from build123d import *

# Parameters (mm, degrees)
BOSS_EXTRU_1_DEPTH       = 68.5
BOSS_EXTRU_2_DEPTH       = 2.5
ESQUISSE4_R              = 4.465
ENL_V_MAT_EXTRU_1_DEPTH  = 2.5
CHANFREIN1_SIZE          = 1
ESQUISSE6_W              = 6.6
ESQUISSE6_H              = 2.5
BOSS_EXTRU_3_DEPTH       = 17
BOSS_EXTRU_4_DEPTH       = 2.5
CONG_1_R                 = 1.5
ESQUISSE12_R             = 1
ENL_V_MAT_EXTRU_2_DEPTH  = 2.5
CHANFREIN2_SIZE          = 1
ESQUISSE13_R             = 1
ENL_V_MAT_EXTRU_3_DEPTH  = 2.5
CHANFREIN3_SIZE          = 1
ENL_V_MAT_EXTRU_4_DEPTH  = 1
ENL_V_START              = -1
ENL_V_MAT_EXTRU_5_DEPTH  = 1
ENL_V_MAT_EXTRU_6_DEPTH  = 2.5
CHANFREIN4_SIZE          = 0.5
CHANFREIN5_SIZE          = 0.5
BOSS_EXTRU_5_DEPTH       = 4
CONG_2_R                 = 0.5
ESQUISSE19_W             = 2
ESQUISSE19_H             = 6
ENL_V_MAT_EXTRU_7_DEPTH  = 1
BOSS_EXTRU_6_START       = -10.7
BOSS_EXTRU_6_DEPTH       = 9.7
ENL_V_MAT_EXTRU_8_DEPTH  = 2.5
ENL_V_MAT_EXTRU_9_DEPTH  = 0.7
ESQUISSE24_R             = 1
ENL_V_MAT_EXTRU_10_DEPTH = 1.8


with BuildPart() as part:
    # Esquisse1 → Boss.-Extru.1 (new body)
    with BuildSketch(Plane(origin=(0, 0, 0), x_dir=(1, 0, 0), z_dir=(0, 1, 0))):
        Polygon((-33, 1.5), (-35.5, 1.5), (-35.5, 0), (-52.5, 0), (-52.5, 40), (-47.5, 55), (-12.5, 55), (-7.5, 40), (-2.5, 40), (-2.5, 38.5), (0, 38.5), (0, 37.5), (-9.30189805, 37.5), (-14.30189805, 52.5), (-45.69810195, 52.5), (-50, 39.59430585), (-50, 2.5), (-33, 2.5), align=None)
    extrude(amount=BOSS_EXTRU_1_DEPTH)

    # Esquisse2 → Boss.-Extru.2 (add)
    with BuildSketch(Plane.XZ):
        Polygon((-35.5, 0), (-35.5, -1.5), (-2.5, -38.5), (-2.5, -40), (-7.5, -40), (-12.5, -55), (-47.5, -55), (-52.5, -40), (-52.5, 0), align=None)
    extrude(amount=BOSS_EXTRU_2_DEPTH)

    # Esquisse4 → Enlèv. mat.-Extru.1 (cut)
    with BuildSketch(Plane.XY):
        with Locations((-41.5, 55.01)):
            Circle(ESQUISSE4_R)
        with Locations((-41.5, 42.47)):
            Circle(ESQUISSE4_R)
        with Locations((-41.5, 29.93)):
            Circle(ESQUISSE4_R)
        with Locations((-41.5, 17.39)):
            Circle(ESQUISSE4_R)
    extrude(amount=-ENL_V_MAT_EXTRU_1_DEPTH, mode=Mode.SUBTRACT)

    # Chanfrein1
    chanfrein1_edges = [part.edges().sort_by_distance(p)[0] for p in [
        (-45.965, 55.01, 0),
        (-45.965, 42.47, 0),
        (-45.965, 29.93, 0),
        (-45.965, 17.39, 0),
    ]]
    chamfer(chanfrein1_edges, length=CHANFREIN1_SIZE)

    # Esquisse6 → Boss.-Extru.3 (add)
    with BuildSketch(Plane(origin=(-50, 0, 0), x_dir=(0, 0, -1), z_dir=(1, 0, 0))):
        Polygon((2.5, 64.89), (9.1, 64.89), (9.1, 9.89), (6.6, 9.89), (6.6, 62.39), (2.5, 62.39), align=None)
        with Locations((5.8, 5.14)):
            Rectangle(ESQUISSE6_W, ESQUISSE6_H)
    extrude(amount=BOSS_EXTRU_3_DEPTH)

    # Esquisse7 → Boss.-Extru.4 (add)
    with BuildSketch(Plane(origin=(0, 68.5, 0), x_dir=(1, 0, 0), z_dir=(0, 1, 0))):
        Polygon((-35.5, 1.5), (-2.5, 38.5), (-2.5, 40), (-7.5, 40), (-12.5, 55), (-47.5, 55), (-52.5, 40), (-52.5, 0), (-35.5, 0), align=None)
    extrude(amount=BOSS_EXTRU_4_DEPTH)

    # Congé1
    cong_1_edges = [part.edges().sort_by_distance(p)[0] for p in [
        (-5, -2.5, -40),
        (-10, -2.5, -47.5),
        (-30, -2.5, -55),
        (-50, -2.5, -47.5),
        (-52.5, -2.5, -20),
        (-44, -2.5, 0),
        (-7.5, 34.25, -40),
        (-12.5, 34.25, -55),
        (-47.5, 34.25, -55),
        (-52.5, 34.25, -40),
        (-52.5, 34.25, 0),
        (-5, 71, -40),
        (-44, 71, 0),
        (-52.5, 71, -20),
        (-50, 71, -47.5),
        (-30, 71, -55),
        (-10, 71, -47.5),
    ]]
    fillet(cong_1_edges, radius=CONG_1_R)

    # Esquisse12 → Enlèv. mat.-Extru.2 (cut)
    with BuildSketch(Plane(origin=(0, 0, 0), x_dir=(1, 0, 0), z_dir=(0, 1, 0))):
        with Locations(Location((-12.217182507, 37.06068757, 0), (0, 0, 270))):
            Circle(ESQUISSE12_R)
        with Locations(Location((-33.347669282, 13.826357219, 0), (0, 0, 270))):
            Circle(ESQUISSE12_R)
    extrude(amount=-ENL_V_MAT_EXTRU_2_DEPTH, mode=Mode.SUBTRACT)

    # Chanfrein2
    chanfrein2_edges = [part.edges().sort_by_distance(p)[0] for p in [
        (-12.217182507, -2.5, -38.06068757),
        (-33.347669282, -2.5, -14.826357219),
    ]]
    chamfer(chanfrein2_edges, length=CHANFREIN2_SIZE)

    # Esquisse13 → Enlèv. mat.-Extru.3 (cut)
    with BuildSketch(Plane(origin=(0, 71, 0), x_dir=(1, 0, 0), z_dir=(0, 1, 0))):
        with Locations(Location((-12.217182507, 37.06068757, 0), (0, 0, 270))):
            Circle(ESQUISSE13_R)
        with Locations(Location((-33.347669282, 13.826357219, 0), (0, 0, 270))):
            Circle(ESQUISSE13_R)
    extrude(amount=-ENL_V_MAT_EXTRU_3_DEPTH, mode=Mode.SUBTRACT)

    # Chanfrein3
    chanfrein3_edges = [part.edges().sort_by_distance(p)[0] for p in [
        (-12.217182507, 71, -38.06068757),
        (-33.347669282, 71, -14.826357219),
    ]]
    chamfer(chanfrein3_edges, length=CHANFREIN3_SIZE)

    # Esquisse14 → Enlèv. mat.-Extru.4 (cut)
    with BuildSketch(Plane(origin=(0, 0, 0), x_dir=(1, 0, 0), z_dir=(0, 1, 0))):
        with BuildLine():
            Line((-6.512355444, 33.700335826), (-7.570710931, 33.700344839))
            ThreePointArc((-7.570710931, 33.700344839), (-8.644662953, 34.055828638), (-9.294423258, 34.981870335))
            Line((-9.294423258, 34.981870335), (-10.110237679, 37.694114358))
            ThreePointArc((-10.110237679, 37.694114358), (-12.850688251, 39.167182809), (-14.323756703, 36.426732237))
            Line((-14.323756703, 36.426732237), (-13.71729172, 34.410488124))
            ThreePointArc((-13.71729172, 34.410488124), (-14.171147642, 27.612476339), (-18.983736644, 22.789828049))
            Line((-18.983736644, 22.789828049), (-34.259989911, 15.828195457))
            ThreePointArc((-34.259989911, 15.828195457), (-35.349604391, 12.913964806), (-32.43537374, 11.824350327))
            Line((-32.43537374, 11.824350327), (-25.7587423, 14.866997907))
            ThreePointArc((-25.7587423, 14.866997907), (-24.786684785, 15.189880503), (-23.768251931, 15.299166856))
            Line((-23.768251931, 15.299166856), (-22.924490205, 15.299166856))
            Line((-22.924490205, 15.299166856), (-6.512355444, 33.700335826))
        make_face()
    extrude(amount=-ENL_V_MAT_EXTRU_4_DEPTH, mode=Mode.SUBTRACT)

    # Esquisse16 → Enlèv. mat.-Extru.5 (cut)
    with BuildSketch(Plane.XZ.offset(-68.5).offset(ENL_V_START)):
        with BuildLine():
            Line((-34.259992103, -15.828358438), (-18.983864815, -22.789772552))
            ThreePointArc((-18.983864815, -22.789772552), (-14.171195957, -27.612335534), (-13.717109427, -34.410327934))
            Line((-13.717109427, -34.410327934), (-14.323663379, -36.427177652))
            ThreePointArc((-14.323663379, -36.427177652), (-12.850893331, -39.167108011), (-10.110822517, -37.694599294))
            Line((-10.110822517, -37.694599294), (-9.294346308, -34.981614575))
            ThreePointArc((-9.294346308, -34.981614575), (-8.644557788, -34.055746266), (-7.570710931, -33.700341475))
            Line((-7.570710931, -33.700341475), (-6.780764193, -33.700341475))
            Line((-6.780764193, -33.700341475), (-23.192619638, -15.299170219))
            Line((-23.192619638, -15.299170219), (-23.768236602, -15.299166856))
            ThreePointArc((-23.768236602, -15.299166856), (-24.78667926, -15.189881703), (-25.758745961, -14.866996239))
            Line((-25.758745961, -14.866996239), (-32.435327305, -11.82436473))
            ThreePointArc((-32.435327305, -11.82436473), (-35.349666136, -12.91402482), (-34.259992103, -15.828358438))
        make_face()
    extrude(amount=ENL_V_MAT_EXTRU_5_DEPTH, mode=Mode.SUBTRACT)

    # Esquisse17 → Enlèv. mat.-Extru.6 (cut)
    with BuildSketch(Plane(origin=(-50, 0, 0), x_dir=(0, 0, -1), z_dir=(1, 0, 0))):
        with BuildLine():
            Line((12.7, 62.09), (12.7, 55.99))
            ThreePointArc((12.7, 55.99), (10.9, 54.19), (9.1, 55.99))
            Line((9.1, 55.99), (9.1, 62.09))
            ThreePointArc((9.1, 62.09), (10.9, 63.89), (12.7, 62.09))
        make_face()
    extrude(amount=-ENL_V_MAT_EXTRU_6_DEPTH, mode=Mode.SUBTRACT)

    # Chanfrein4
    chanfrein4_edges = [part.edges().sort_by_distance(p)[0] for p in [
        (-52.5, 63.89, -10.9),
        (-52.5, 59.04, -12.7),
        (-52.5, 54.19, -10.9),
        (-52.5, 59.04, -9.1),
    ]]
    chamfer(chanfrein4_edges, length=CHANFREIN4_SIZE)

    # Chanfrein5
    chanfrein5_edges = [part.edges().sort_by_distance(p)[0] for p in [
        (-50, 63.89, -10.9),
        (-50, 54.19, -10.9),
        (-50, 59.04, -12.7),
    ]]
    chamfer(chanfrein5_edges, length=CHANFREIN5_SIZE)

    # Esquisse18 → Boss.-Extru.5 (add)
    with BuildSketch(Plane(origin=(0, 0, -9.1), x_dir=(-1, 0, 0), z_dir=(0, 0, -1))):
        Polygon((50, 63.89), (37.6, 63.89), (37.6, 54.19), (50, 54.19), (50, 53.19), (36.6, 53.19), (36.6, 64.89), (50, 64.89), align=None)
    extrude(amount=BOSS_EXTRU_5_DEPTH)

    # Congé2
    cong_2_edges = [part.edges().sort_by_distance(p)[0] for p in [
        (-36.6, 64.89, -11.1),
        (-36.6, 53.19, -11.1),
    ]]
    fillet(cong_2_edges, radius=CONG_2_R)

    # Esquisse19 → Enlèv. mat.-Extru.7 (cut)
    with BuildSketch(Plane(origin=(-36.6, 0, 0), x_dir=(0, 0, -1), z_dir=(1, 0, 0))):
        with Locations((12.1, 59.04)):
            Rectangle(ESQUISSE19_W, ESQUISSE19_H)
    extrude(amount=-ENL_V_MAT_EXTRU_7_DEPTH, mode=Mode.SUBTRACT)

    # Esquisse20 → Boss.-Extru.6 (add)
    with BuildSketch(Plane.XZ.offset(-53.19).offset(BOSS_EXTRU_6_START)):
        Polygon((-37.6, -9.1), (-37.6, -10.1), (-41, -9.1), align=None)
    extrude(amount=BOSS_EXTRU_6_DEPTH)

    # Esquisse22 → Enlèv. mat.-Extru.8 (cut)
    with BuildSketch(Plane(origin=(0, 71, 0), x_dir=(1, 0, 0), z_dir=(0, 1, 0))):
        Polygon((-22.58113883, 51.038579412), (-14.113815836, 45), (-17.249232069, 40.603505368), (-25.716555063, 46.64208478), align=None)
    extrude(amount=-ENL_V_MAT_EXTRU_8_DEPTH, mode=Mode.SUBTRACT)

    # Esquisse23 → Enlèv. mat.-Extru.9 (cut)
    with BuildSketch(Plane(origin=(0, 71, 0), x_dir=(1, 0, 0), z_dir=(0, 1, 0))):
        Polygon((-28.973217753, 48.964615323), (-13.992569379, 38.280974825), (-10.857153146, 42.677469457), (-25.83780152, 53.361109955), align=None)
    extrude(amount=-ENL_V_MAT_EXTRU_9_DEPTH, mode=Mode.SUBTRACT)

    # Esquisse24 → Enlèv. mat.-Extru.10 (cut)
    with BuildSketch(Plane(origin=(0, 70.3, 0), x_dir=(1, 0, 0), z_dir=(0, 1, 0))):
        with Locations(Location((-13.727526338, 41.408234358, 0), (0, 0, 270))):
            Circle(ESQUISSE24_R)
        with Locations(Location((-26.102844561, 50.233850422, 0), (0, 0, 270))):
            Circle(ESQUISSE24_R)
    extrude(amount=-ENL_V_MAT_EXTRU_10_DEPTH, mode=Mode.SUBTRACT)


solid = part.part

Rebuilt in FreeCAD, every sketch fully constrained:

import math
import FreeCAD as App
import Part
import Sketcher

V = App.Vector
Q = App.Units.Quantity


def edges_at(feature, points):
    """Names of the edges that pass closest to the given points."""
    edges = feature.Shape.Edges
    near = lambda p: min(range(len(edges)), key=lambda i: edges[i].distToShape(Part.Vertex(*p))[0])
    return sorted({f"Edge{near(p) + 1}" for p in points})


def add_polygon(sketch, points):
    """Adds a closed chain of lines whose ends are joined by coincident constraints."""
    first, n = sketch.GeometryCount, len(points)
    for a, b in zip(points, points[1:] + points[:1]):
        sketch.addGeometry(Part.LineSegment(App.Vector(*a, 0), App.Vector(*b, 0)), False)
    for i in range(n):
        sketch.addConstraint(Sketcher.Constraint("Coincident", first + i, 2, first + (i + 1) % n, 1))

doc = App.newDocument("Part")
body = doc.addObject("PartDesign::Body", "Body")

# Sketch on XZ plane
sketch1 = doc.addObject("Sketcher::SketchObject", "Sketch")
body.addObject(sketch1)
sketch1.AttachmentSupport = (doc.XZ_Plane, [""])
sketch1.MapMode = "FlatFace"
add_polygon(sketch1, [(-35.5, -1.5), (-33, -1.5), (-33, -2.5), (-50, -2.5), (-50, -39.6), (-45.7, -52.5), (-14.3, -52.5), (-9.3, -37.5), (0, -37.5), (0, -38.5), (-2.5, -38.5), (-2.5, -40), (-7.5, -40), (-12.5, -55), (-47.5, -55), (-52.5, -40), (-52.5, 0), (-35.5, 0)])  # lines 0-17
sketch1.addConstraint(Sketcher.Constraint("Horizontal", 0))
sketch1.addConstraint(Sketcher.Constraint("Vertical", 1))
sketch1.addConstraint(Sketcher.Constraint("Horizontal", 2))
sketch1.addConstraint(Sketcher.Constraint("Vertical", 3))
sketch1.addConstraint(Sketcher.Constraint("Horizontal", 5))
sketch1.addConstraint(Sketcher.Constraint("Horizontal", 7))
sketch1.addConstraint(Sketcher.Constraint("Vertical", 8))
sketch1.addConstraint(Sketcher.Constraint("Horizontal", 9))
sketch1.addConstraint(Sketcher.Constraint("Vertical", 10))
sketch1.addConstraint(Sketcher.Constraint("Horizontal", 11))
sketch1.addConstraint(Sketcher.Constraint("Horizontal", 13))
sketch1.addConstraint(Sketcher.Constraint("Vertical", 15))
sketch1.addConstraint(Sketcher.Constraint("Horizontal", 16))
sketch1.addConstraint(Sketcher.Constraint("Vertical", 17))
sketch1.addConstraint(Sketcher.Constraint("PointOnObject", 7, 2, -2))
sketch1.addConstraint(Sketcher.Constraint("PointOnObject", 15, 2, -1))
sketch1.addConstraint(Sketcher.Constraint("Parallel", 6, 12))
sketch1.addConstraint(Sketcher.Constraint("Parallel", 4, 14))
sketch1.addConstraint(Sketcher.Constraint("Horizontal", 11, 2, 14, 2))
sketch1.addConstraint(Sketcher.Constraint("Equal", 0, 9))
sketch1.addConstraint(Sketcher.Constraint("Equal", 2, 16))
sketch1.addConstraint(Sketcher.Constraint("Equal", 1, 8))
sketch1.addConstraint(Sketcher.Constraint("Equal", 10, 17))
sketch1.addConstraint(Sketcher.Constraint("Equal", 6, 12))
sketch1.addConstraint(Sketcher.Constraint("Equal", 12, 14))
sketch1.addConstraint(Sketcher.Constraint("DistanceX", 2, 2, 2, 1, 17.0))
sketch1.addConstraint(Sketcher.Constraint("DistanceX", 11, 2, 11, 1, 5.0))
sketch1.addConstraint(Sketcher.Constraint("DistanceX", 13, 2, 13, 1, 35.0))
sketch1.addConstraint(Sketcher.Constraint("DistanceY", 1, 2, 1, 1, 1.0))
sketch1.addConstraint(Sketcher.Constraint("DistanceY", 15, 1, 15, 2, 40.0))
sketch1.addConstraint(Sketcher.Constraint("DistanceX", 0, 1, 0, 2, 2.5))
sketch1.addConstraint(Sketcher.Constraint("DistanceY", 10, 2, 10, 1, 1.5))
sketch1.addConstraint(Sketcher.Constraint("DistanceX", 0, 2, -1, 1, 33.0))
sketch1.addConstraint(Sketcher.Constraint("DistanceY", 12, 2, -1, 1, 55.0))
sketch1.addConstraint(Sketcher.Constraint("DistanceX", 7, 1, 7, 2, 9.301898))
sketch1.addConstraint(Sketcher.Constraint("DistanceX", 4, 2, -1, 1, 45.698102))
pad1 = doc.addObject("PartDesign::Pad", "Pad")
body.addObject(pad1)
pad1.Profile = sketch1
pad1.Length = 68.5
pad1.Reversed = True

# Sketch on XZ plane
sketch2 = doc.addObject("Sketcher::SketchObject", "Sketch001")
body.addObject(sketch2)
sketch2.AttachmentSupport = (doc.XZ_Plane, [""])
sketch2.MapMode = "FlatFace"
add_polygon(sketch2, [(-35.5, -1.5), (-35.5, 0), (-52.5, 0), (-52.5, -40), (-47.5, -55), (-12.5, -55), (-7.5, -40), (-2.5, -40), (-2.5, -38.5)])  # lines 0-8
sketch2.addConstraint(Sketcher.Constraint("Vertical", 0))
sketch2.addConstraint(Sketcher.Constraint("Horizontal", 1))
sketch2.addConstraint(Sketcher.Constraint("Vertical", 2))
sketch2.addConstraint(Sketcher.Constraint("Horizontal", 4))
sketch2.addConstraint(Sketcher.Constraint("Horizontal", 6))
sketch2.addConstraint(Sketcher.Constraint("Vertical", 7))
sketch2.addConstraint(Sketcher.Constraint("PointOnObject", 0, 2, -1))
sketch2.addConstraint(Sketcher.Constraint("Horizontal", 2, 2, 5, 2))
sketch2.addConstraint(Sketcher.Constraint("Equal", 0, 7))
sketch2.addConstraint(Sketcher.Constraint("Equal", 3, 5))
sketch2.addConstraint(Sketcher.Constraint("DistanceX", 1, 2, 1, 1, 17.0))
sketch2.addConstraint(Sketcher.Constraint("DistanceX", 4, 1, 4, 2, 35.0))
sketch2.addConstraint(Sketcher.Constraint("DistanceX", 6, 1, 6, 2, 5.0))
sketch2.addConstraint(Sketcher.Constraint("DistanceY", 2, 2, 2, 1, 40.0))
sketch2.addConstraint(Sketcher.Constraint("DistanceY", 0, 1, 0, 2, 1.5))
sketch2.addConstraint(Sketcher.Constraint("DistanceY", 3, 2, -1, 1, 55.0))
sketch2.addConstraint(Sketcher.Constraint("DistanceX", 2, 2, 3, 2, 5.0))
sketch2.addConstraint(Sketcher.Constraint("DistanceX", 0, 2, -1, 1, 35.5))
pad2 = doc.addObject("PartDesign::Pad", "Pad001")
body.addObject(pad2)
pad2.Profile = sketch2
pad2.Length = 2.5

# Sketch on XY plane
sketch3 = doc.addObject("Sketcher::SketchObject", "Sketch002")
body.addObject(sketch3)
sketch3.AttachmentSupport = (doc.XY_Plane, [""])
sketch3.MapMode = "FlatFace"
sketch3.addGeometry(Part.Circle(V(-41.5, 55, 0), V(0, 0, 1), 4.5), False)
sketch3.addGeometry(Part.Circle(V(-41.5, 42.5, 0), V(0, 0, 1), 4.5), False)
sketch3.addGeometry(Part.Circle(V(-41.5, 29.9, 0), V(0, 0, 1), 4.5), False)
sketch3.addGeometry(Part.Circle(V(-41.5, 17.4, 0), V(0, 0, 1), 4.5), False)
sketch3.addConstraint(Sketcher.Constraint("Equal", 0, 1))
sketch3.addConstraint(Sketcher.Constraint("Equal", 1, 2))
sketch3.addConstraint(Sketcher.Constraint("Equal", 2, 3))
sketch3.addConstraint(Sketcher.Constraint("Vertical", 0, 3, 1, 3))
sketch3.addConstraint(Sketcher.Constraint("Vertical", 1, 3, 2, 3))
sketch3.addConstraint(Sketcher.Constraint("Vertical", 2, 3, 3, 3))
sketch3.addConstraint(Sketcher.Constraint("Diameter", 0, 8.93))
sketch3.addConstraint(Sketcher.Constraint("DistanceX", 0, 3, -1, 1, 41.5))
sketch3.addConstraint(Sketcher.Constraint("DistanceY", -1, 1, 0, 3, 55.01))
sketch3.addConstraint(Sketcher.Constraint("DistanceY", -1, 1, 1, 3, 42.47))
sketch3.addConstraint(Sketcher.Constraint("DistanceY", -1, 1, 2, 3, 29.93))
sketch3.addConstraint(Sketcher.Constraint("DistanceY", -1, 1, 3, 3, 17.39))
pocket1 = doc.addObject("PartDesign::Pocket", "Pocket")
body.addObject(pocket1)
pocket1.Profile = sketch3
pocket1.Length = 2.5
doc.recompute()

chamfer = doc.addObject("PartDesign::Chamfer", "Chamfer")
body.addObject(chamfer)
chamfer.Base = (pocket1, edges_at(pocket1, [
    (-45.965, 55.01, 0),
    (-45.965, 42.47, 0),
    (-45.965, 29.93, 0),
    (-45.965, 17.39, 0),
]))
chamfer.Size = 1

# Sketch on YZ plane
sketch4 = doc.addObject("Sketcher::SketchObject", "Sketch003")
body.addObject(sketch4)
sketch4.AttachmentSupport = (doc.YZ_Plane, [""])
sketch4.MapMode = "FlatFace"
sketch4.AttachmentOffset = App.Placement(V(0, 0, -50), App.Rotation())
add_polygon(sketch4, [(64.9, -9.1), (64.9, -2.5), (62.4, -2.5), (62.4, -6.6), (9.9, -6.6), (9.9, -9.1)])  # lines 0-5
add_polygon(sketch4, [(6.4, -2.5), (3.9, -2.5), (3.9, -9.1), (6.4, -9.1)])  # lines 6-9
sketch4.addConstraint(Sketcher.Constraint("Vertical", 0))
sketch4.addConstraint(Sketcher.Constraint("Horizontal", 1))
sketch4.addConstraint(Sketcher.Constraint("Vertical", 2))
sketch4.addConstraint(Sketcher.Constraint("Horizontal", 3))
sketch4.addConstraint(Sketcher.Constraint("Vertical", 4))
sketch4.addConstraint(Sketcher.Constraint("Horizontal", 5))
sketch4.addConstraint(Sketcher.Constraint("Horizontal", 6))
sketch4.addConstraint(Sketcher.Constraint("Vertical", 7))
sketch4.addConstraint(Sketcher.Constraint("Horizontal", 8))
sketch4.addConstraint(Sketcher.Constraint("Vertical", 9))
sketch4.addConstraint(Sketcher.Constraint("Horizontal", 1, 2, 6, 2))
sketch4.addConstraint(Sketcher.Constraint("Horizontal", 5, 2, 7, 2))
sketch4.addConstraint(Sketcher.Constraint("Equal", 1, 6))
sketch4.addConstraint(Sketcher.Constraint("Equal", 8, 4))
sketch4.addConstraint(Sketcher.Constraint("DistanceX", 5, 1, 5, 2, 55.0))
sketch4.addConstraint(Sketcher.Constraint("DistanceX", 1, 2, 1, 1, 2.5))
sketch4.addConstraint(Sketcher.Constraint("DistanceY", 0, 1, 0, 2, 6.6))
sketch4.addConstraint(Sketcher.Constraint("DistanceX", 6, 2, 3, 2, 6.0))
sketch4.addConstraint(Sketcher.Constraint("DistanceY", 0, 2, -1, 1, 2.5))
sketch4.addConstraint(Sketcher.Constraint("DistanceX", -1, 1, 0, 2, 64.89))
pad3 = doc.addObject("PartDesign::Pad", "Pad002")
body.addObject(pad3)
pad3.Profile = sketch4
pad3.Length = 17

# Sketch on XZ plane
sketch5 = doc.addObject("Sketcher::SketchObject", "Sketch004")
body.addObject(sketch5)
sketch5.AttachmentSupport = (doc.XZ_Plane, [""])
sketch5.MapMode = "FlatFace"
sketch5.AttachmentOffset = App.Placement(V(0, 0, -68.5), App.Rotation())
add_polygon(sketch5, [(-35.5, -1.5), (-2.5, -38.5), (-2.5, -40), (-7.5, -40), (-12.5, -55), (-47.5, -55), (-52.5, -40), (-52.5, 0), (-35.5, 0)])  # lines 0-8
sketch5.addConstraint(Sketcher.Constraint("Vertical", 1))
sketch5.addConstraint(Sketcher.Constraint("Horizontal", 2))
sketch5.addConstraint(Sketcher.Constraint("Horizontal", 4))
sketch5.addConstraint(Sketcher.Constraint("Vertical", 6))
sketch5.addConstraint(Sketcher.Constraint("Horizontal", 7))
sketch5.addConstraint(Sketcher.Constraint("Vertical", 8))
sketch5.addConstraint(Sketcher.Constraint("PointOnObject", 6, 2, -1))
sketch5.addConstraint(Sketcher.Constraint("Horizontal", 2, 2, 5, 2))
sketch5.addConstraint(Sketcher.Constraint("Equal", 1, 8))
sketch5.addConstraint(Sketcher.Constraint("Equal", 3, 5))
sketch5.addConstraint(Sketcher.Constraint("DistanceX", 2, 2, 2, 1, 5.0))
sketch5.addConstraint(Sketcher.Constraint("DistanceX", 4, 2, 4, 1, 35.0))
sketch5.addConstraint(Sketcher.Constraint("DistanceX", 7, 1, 7, 2, 17.0))
sketch5.addConstraint(Sketcher.Constraint("DistanceY", 6, 1, 6, 2, 40.0))
sketch5.addConstraint(Sketcher.Constraint("DistanceY", 1, 2, 1, 1, 1.5))
sketch5.addConstraint(Sketcher.Constraint("DistanceY", 3, 2, -1, 1, 55.0))
sketch5.addConstraint(Sketcher.Constraint("DistanceX", 3, 2, 2, 2, 5.0))
sketch5.addConstraint(Sketcher.Constraint("DistanceX", 0, 2, -1, 1, 2.5))
pad4 = doc.addObject("PartDesign::Pad", "Pad003")
body.addObject(pad4)
pad4.Profile = sketch5
pad4.Length = 2.5
pad4.Reversed = True
doc.recompute()

fillet = doc.addObject("PartDesign::Fillet", "Fillet")
body.addObject(fillet)
fillet.Base = (pad4, edges_at(pad4, [
    (-5, -2.5, -40),
    (-10, -2.5, -47.5),
    (-30, -2.5, -55),
    (-50, -2.5, -47.5),
    (-52.5, -2.5, -20),
    (-44, -2.5, 0),
    (-7.5, 34.25, -40),
    (-12.5, 34.25, -55),
    (-47.5, 34.25, -55),
    (-52.5, 34.25, -40),
    (-52.5, 34.25, 0),
    (-5, 71, -40),
    (-44, 71, 0),
    (-52.5, 71, -20),
    (-50, 71, -47.5),
    (-30, 71, -55),
    (-10, 71, -47.5),
]))
fillet.Radius = 1.5

# Sketch on XZ plane
sketch6 = doc.addObject("Sketcher::SketchObject", "Sketch005")
body.addObject(sketch6)
sketch6.AttachmentSupport = (doc.XZ_Plane, [""])
sketch6.MapMode = "FlatFace"
sketch6.addGeometry(Part.Circle(V(-12.2, -37.1, 0), V(0, 0, 1), 1), False)
sketch6.addGeometry(Part.Circle(V(-33.3, -13.8, 0), V(0, 0, 1), 1), False)
sketch6.addConstraint(Sketcher.Constraint("Equal", 0, 1))
sketch6.addConstraint(Sketcher.Constraint("Diameter", 0, 2.0))
sketch6.addConstraint(Sketcher.Constraint("DistanceX", 1, 3, -1, 1, 33.347669))
sketch6.addConstraint(Sketcher.Constraint("DistanceY", 0, 3, 1, 3, 23.23433))
sketch6.addConstraint(Sketcher.Constraint("DistanceX", 0, 3, -1, 1, 12.217183))
sketch6.addConstraint(Sketcher.Constraint("DistanceY", 0, 3, -1, 1, 37.060688))
pocket2 = doc.addObject("PartDesign::Pocket", "Pocket001")
body.addObject(pocket2)
pocket2.Profile = sketch6
pocket2.Length = 2.5
pocket2.Reversed = True
doc.recompute()

chamfer2 = doc.addObject("PartDesign::Chamfer", "Chamfer001")
body.addObject(chamfer2)
chamfer2.Base = (pocket2, edges_at(pocket2, [(-12.217, -2.5, -38.061), (-33.348, -2.5, -14.826)]))
chamfer2.Size = 1

# Sketch on XZ plane
sketch7 = doc.addObject("Sketcher::SketchObject", "Sketch006")
body.addObject(sketch7)
sketch7.AttachmentSupport = (doc.XZ_Plane, [""])
sketch7.MapMode = "FlatFace"
sketch7.AttachmentOffset = App.Placement(V(0, 0, -71), App.Rotation())
sketch7.addGeometry(Part.Circle(V(-12.2, -37.1, 0), V(0, 0, 1), 1), False)
sketch7.addGeometry(Part.Circle(V(-33.3, -13.8, 0), V(0, 0, 1), 1), False)
sketch7.addConstraint(Sketcher.Constraint("Equal", 0, 1))
sketch7.addConstraint(Sketcher.Constraint("Diameter", 0, 2.0))
sketch7.addConstraint(Sketcher.Constraint("DistanceX", 1, 3, -1, 1, 33.347669))
sketch7.addConstraint(Sketcher.Constraint("DistanceY", 0, 3, 1, 3, 23.23433))
sketch7.addConstraint(Sketcher.Constraint("DistanceX", 0, 3, -1, 1, 12.217183))
sketch7.addConstraint(Sketcher.Constraint("DistanceY", 0, 3, -1, 1, 37.060688))
pocket3 = doc.addObject("PartDesign::Pocket", "Pocket002")
body.addObject(pocket3)
pocket3.Profile = sketch7
pocket3.Length = 2.5
pocket3.Reversed = True
doc.recompute()

chamfer3 = doc.addObject("PartDesign::Chamfer", "Chamfer002")
body.addObject(chamfer3)
chamfer3.Base = (pocket3, edges_at(pocket3, [(-12.217, 71, -38.061), (-33.348, 71, -14.826)]))
chamfer3.Size = 1

# Sketch on XZ plane
sketch8 = doc.addObject("Sketcher::SketchObject", "Sketch007")
body.addObject(sketch8)
sketch8.AttachmentSupport = (doc.XZ_Plane, [""])
sketch8.MapMode = "FlatFace"
sketch8.addGeometry(Part.LineSegment(V(-6.5, -33.7, 0), V(-7.6, -33.7, 0)), False)
sketch8.addGeometry(Part.ArcOfCircle(Part.Circle(V(-7.6, -35.5, 0), V(0, 0, 1), 1.8), math.radians(90), math.radians(163)), False)
sketch8.addGeometry(Part.LineSegment(V(-9.3, -35, 0), V(-10.1, -37.7, 0)), False)
sketch8.addGeometry(Part.ArcOfCircle(Part.Circle(V(-12.2, -37.1, 0), V(0, 0, 1), 2.2), math.radians(163), math.radians(343)), False)
sketch8.addGeometry(Part.LineSegment(V(-14.3, -36.4, 0), V(-13.7, -34.4, 0)), False)
sketch8.addGeometry(Part.ArcOfCircle(Part.Circle(V(-23, -31.6, 0), V(0, 0, 1), 9.7), math.radians(-17), math.radians(66)), False)
sketch8.addGeometry(Part.LineSegment(V(-19, -22.8, 0), V(-34.3, -15.8, 0)), False)
sketch8.addGeometry(Part.ArcOfCircle(Part.Circle(V(-33.3, -13.8, 0), V(0, 0, 1), 2.2), math.radians(66), math.radians(246)), False)
sketch8.addGeometry(Part.LineSegment(V(-32.4, -11.8, 0), V(-25.8, -14.9, 0)), False)
sketch8.addGeometry(Part.ArcOfCircle(Part.Circle(V(-23.8, -10.5, 0), V(0, 0, 1), 4.8), math.radians(-114), math.radians(-90)), False)
sketch8.addGeometry(Part.LineSegment(V(-23.8, -15.3, 0), V(-22.9, -15.3, 0)), False)
sketch8.addGeometry(Part.LineSegment(V(-22.9, -15.3, 0), V(-6.5, -33.7, 0)), False)
sketch8.addConstraint(Sketcher.Constraint("Coincident", 0, 2, 1, 1))
sketch8.addConstraint(Sketcher.Constraint("Tangent", 1, 2, 2, 1))
sketch8.addConstraint(Sketcher.Constraint("Tangent", 2, 2, 3, 2))
sketch8.addConstraint(Sketcher.Constraint("Tangent", 3, 1, 4, 1))
sketch8.addConstraint(Sketcher.Constraint("Tangent", 4, 2, 5, 1))
sketch8.addConstraint(Sketcher.Constraint("Tangent", 5, 2, 6, 1))
sketch8.addConstraint(Sketcher.Constraint("Tangent", 6, 2, 7, 2))
sketch8.addConstraint(Sketcher.Constraint("Tangent", 7, 1, 8, 1))
sketch8.addConstraint(Sketcher.Constraint("Tangent", 8, 2, 9, 1))
sketch8.addConstraint(Sketcher.Constraint("Tangent", 9, 2, 10, 1))
sketch8.addConstraint(Sketcher.Constraint("Coincident", 10, 2, 11, 1))
sketch8.addConstraint(Sketcher.Constraint("Coincident", 11, 2, 0, 1))
sketch8.addConstraint(Sketcher.Constraint("Horizontal", 10))
sketch8.addConstraint(Sketcher.Constraint("Equal", 3, 7))
sketch8.addConstraint(Sketcher.Constraint("Parallel", 2, 4))
sketch8.addConstraint(Sketcher.Constraint("Parallel", 6, 8))
sketch8.addConstraint(Sketcher.Constraint("Vertical", 1, 3, 0, 2))
sketch8.addConstraint(Sketcher.Constraint("Radius", 1, 1.8))
sketch8.addConstraint(Sketcher.Constraint("Radius", 3, 2.2))
sketch8.addConstraint(Sketcher.Constraint("Radius", 5, 9.7))
sketch8.addConstraint(Sketcher.Constraint("Radius", 9, 4.8))
sketch8.addConstraint(Sketcher.Constraint("Angle", 11, Q("-48.27 deg")))
sketch8.addConstraint(Sketcher.Constraint("DistanceX", 10, 1, 10, 2, 0.843762))
sketch8.addConstraint(Sketcher.Constraint("DistanceX", 6, 2, 4, 2, 20.542698))
sketch8.addConstraint(Sketcher.Constraint("Distance", 2, 2.832282))
sketch8.addConstraint(Sketcher.Constraint("Distance", 4, 2.105479))
sketch8.addConstraint(Sketcher.Constraint("Distance", 6, 16.787741))
sketch8.addConstraint(Sketcher.Constraint("Distance", 8, 7.337241))
sketch8.addConstraint(Sketcher.Constraint("Distance", 11, 24.656869))
sketch8.addConstraint(Sketcher.Constraint("DistanceX", 1, 3, -1, 1, 7.570711))
sketch8.addConstraint(Sketcher.Constraint("DistanceX", 7, 3, -1, 1, 33.347682))
sketch8.addConstraint(Sketcher.Constraint("DistanceY", 1, 2, -1, 1, 34.98187))
pocket4 = doc.addObject("PartDesign::Pocket", "Pocket003")
body.addObject(pocket4)
pocket4.Profile = sketch8
pocket4.Length = 1
pocket4.Reversed = True

# Sketch on XZ plane
sketch9 = doc.addObject("Sketcher::SketchObject", "Sketch008")
body.addObject(sketch9)
sketch9.AttachmentSupport = (doc.XZ_Plane, [""])
sketch9.MapMode = "FlatFace"
sketch9.AttachmentOffset = App.Placement(V(0, 0, -69.5), App.Rotation())
sketch9.addGeometry(Part.LineSegment(V(-34.259992, -15.828358, 0), V(-18.983865, -22.789773, 0)), False)
sketch9.addGeometry(Part.ArcOfCircle(Part.Circle(V(-23.006325, -31.616659, 0), V(0, 0, 1), 9.700212), math.radians(-16.738305), math.radians(65.500988)), False)
sketch9.addGeometry(Part.LineSegment(V(-13.717109, -34.410328, 0), V(-14.323663, -36.427178, 0)), False)
sketch9.addGeometry(Part.ArcOfCircle(Part.Circle(V(-12.217183, -37.060688, 0), V(0, 0, 1), 2.199681), math.radians(163.261695), math.radians(343.250765)), False)
sketch9.addGeometry(Part.LineSegment(V(-10.110823, -37.694599, 0), V(-9.294346, -34.981615, 0)), False)
sketch9.addGeometry(Part.ArcOfCircle(Part.Circle(V(-7.570714, -35.500336, 0), V(0, 0, 1), 1.799995), math.radians(89.99991), math.radians(163.250999)), False)
sketch9.addGeometry(Part.LineSegment(V(-7.570711, -33.700341, 0), V(-6.780764, -33.700341, 0)), False)
sketch9.addGeometry(Part.LineSegment(V(-6.780764, -33.700341, 0), V(-23.19262, -15.29917, 0)), False)
sketch9.addGeometry(Part.LineSegment(V(-23.19262, -15.29917, 0), V(-23.768237, -15.299167, 0)), False)
sketch9.addGeometry(Part.ArcOfCircle(Part.Circle(V(-23.768252, -10.499167, 0), V(0, 0, 1), 4.8), math.radians(-114.49956), math.radians(-89.999817)), False)
sketch9.addGeometry(Part.LineSegment(V(-25.758746, -14.866996, 0), V(-32.435327, -11.824365, 0)), False)
sketch9.addGeometry(Part.ArcOfCircle(Part.Circle(V(-33.347669, -13.826357, 0), V(0, 0, 1), 2.200078), math.radians(65.50044), math.radians(245.500988)), False)
sketch9.addConstraint(Sketcher.Constraint("Coincident", 0, 2, 1, 2))
sketch9.addConstraint(Sketcher.Constraint("Coincident", 1, 1, 2, 1))
sketch9.addConstraint(Sketcher.Constraint("Coincident", 2, 2, 3, 1))
sketch9.addConstraint(Sketcher.Constraint("Coincident", 3, 2, 4, 1))
sketch9.addConstraint(Sketcher.Constraint("Coincident", 4, 2, 5, 2))
sketch9.addConstraint(Sketcher.Constraint("Coincident", 5, 1, 6, 1))
sketch9.addConstraint(Sketcher.Constraint("Coincident", 6, 2, 7, 1))
sketch9.addConstraint(Sketcher.Constraint("Coincident", 7, 2, 8, 1))
sketch9.addConstraint(Sketcher.Constraint("Coincident", 8, 2, 9, 2))
sketch9.addConstraint(Sketcher.Constraint("Coincident", 9, 1, 10, 1))
sketch9.addConstraint(Sketcher.Constraint("Coincident", 10, 2, 11, 1))
sketch9.addConstraint(Sketcher.Constraint("Coincident", 11, 2, 0, 1))
sketch9.addConstraint(Sketcher.Constraint("Horizontal", 6))
sketch9.addConstraint(Sketcher.Constraint("Radius", 9, 4.8))
sketch9.addConstraint(Sketcher.Constraint("Radius", 1, 9.700212))
sketch9.addConstraint(Sketcher.Constraint("Radius", 3, 2.199681))
sketch9.addConstraint(Sketcher.Constraint("Radius", 5, 1.799995))
sketch9.addConstraint(Sketcher.Constraint("Radius", 11, 2.200078))
sketch9.addConstraint(Sketcher.Constraint("DistanceY", 11, 2, 11, 3, 2.002001))
sketch9.addConstraint(Sketcher.Constraint("DistanceY", 3, 2, -1, 1, 37.694599))
sketch9.addConstraint(Sketcher.Constraint("DistanceY", 1, 3, 11, 3, 17.790302))
sketch9.addConstraint(Sketcher.Constraint("DistanceX", 0, 2, 2, 2, 4.660201))
sketch9.addConstraint(Sketcher.Constraint("DistanceX", 1, 1, 5, 1, 6.146398))
sketch9.addConstraint(Sketcher.Constraint("Distance", 4, 2.833182))
sketch9.addConstraint(Sketcher.Constraint("Distance", 10, 7.337189))
sketch9.addConstraint(Sketcher.Constraint("DistanceX", 6, 1, 6, 2, 0.789947))
sketch9.addConstraint(Sketcher.Constraint("DistanceY", 1, 3, -1, 1, 31.616659))
sketch9.addConstraint(Sketcher.Constraint("DistanceX", 9, 3, -1, 1, 23.768252))
sketch9.addConstraint(Sketcher.Constraint("DistanceX", 11, 3, -1, 1, 33.347669))
sketch9.addConstraint(Sketcher.Constraint("DistanceX", 1, 1, -1, 1, 13.717109))
sketch9.addConstraint(Sketcher.Constraint("DistanceY", 5, 1, -1, 1, 33.700341))
sketch9.addConstraint(Sketcher.Constraint("DistanceX", 7, 2, -1, 1, 23.19262))
sketch9.addConstraint(Sketcher.Constraint("DistanceY", 7, 2, -1, 1, 15.29917))
sketch9.addConstraint(Sketcher.Constraint("DistanceY", 3, 3, 1, 3, 5.444029))
sketch9.addConstraint(Sketcher.Constraint("DistanceX", 3, 3, 5, 3, 4.646469))
sketch9.addConstraint(Sketcher.Constraint("DistanceX", 1, 3, 5, 3, 15.435611))
sketch9.addConstraint(Sketcher.Constraint("DistanceX", 9, 3, 3, 3, 11.551069))
sketch9.addConstraint(Sketcher.Constraint("DistanceY", 3, 3, 9, 3, 26.561521))
sketch9.addConstraint(Sketcher.Constraint("DistanceX", 1, 3, 0, 2, 4.02246))
sketch9.addConstraint(Sketcher.Constraint("DistanceX", 8, 2, 0, 2, 4.784372))
sketch9.addConstraint(Sketcher.Constraint("DistanceX", 9, 1, 8, 2, 1.990509))
pocket5 = doc.addObject("PartDesign::Pocket", "Pocket004")
body.addObject(pocket5)
pocket5.Profile = sketch9
pocket5.Length = 1
pocket5.Reversed = True

# Sketch on YZ plane
sketch10 = doc.addObject("Sketcher::SketchObject", "Sketch009")
body.addObject(sketch10)
sketch10.AttachmentSupport = (doc.YZ_Plane, [""])
sketch10.MapMode = "FlatFace"
sketch10.AttachmentOffset = App.Placement(V(0, 0, -50), App.Rotation())
sketch10.addGeometry(Part.LineSegment(V(56, -12.7, 0), V(62.1, -12.7, 0)), False)
sketch10.addGeometry(Part.ArcOfCircle(Part.Circle(V(62.1, -10.9, 0), V(0, 0, 1), 1.8), math.radians(-90), math.radians(90)), False)
sketch10.addGeometry(Part.LineSegment(V(62.1, -9.1, 0), V(56, -9.1, 0)), False)
sketch10.addGeometry(Part.ArcOfCircle(Part.Circle(V(56, -10.9, 0), V(0, 0, 1), 1.8), math.radians(90), math.radians(270)), False)
sketch10.addConstraint(Sketcher.Constraint("Tangent", 0, 2, 1, 1))
sketch10.addConstraint(Sketcher.Constraint("Tangent", 1, 2, 2, 1))
sketch10.addConstraint(Sketcher.Constraint("Tangent", 2, 2, 3, 1))
sketch10.addConstraint(Sketcher.Constraint("Tangent", 3, 2, 0, 1))
sketch10.addConstraint(Sketcher.Constraint("Horizontal", 0))
sketch10.addConstraint(Sketcher.Constraint("Horizontal", 2))
sketch10.addConstraint(Sketcher.Constraint("Radius", 1, 1.8))
sketch10.addConstraint(Sketcher.Constraint("DistanceX", 0, 1, 0, 2, 6.1))
sketch10.addConstraint(Sketcher.Constraint("DistanceY", 1, 3, -1, 1, 10.9))
sketch10.addConstraint(Sketcher.Constraint("DistanceX", -1, 1, 1, 3, 62.09))
pocket6 = doc.addObject("PartDesign::Pocket", "Pocket005")
body.addObject(pocket6)
pocket6.Profile = sketch10
pocket6.Length = 2.5
doc.recompute()

chamfer4 = doc.addObject("PartDesign::Chamfer", "Chamfer003")
body.addObject(chamfer4)
chamfer4.Base = (pocket6, edges_at(pocket6, [
    (-52.5, 63.89, -10.9),
    (-52.5, 59.04, -12.7),
    (-52.5, 54.19, -10.9),
    (-52.5, 59.04, -9.1),
]))
chamfer4.Size = 0.5
doc.recompute()

chamfer5 = doc.addObject("PartDesign::Chamfer", "Chamfer004")
body.addObject(chamfer5)
chamfer5.Base = (chamfer4, edges_at(chamfer4, [(-50, 63.89, -10.9), (-50, 54.19, -10.9), (-50, 59.04, -12.7)]))
chamfer5.Size = 0.5

# Sketch on XY plane
sketch11 = doc.addObject("Sketcher::SketchObject", "Sketch010")
body.addObject(sketch11)
sketch11.AttachmentSupport = (doc.XY_Plane, [""])
sketch11.MapMode = "FlatFace"
sketch11.AttachmentOffset = App.Placement(V(0, 0, -9.1), App.Rotation())
add_polygon(sketch11, [(-37.6, 63.9), (-50, 63.9), (-50, 64.9), (-36.6, 64.9), (-36.6, 53.2), (-50, 53.2), (-50, 54.2), (-37.6, 54.2)])  # lines 0-7
sketch11.addConstraint(Sketcher.Constraint("Horizontal", 0))
sketch11.addConstraint(Sketcher.Constraint("Vertical", 1))
sketch11.addConstraint(Sketcher.Constraint("Horizontal", 2))
sketch11.addConstraint(Sketcher.Constraint("Vertical", 3))
sketch11.addConstraint(Sketcher.Constraint("Horizontal", 4))
sketch11.addConstraint(Sketcher.Constraint("Vertical", 5))
sketch11.addConstraint(Sketcher.Constraint("Horizontal", 6))
sketch11.addConstraint(Sketcher.Constraint("Vertical", 7))
sketch11.addConstraint(Sketcher.Constraint("Vertical", 1, 2, 4, 2))
sketch11.addConstraint(Sketcher.Constraint("Equal", 1, 5))
sketch11.addConstraint(Sketcher.Constraint("DistanceY", 1, 1, 1, 2, 1.0))
sketch11.addConstraint(Sketcher.Constraint("DistanceX", 0, 2, 0, 1, 12.4))
sketch11.addConstraint(Sketcher.Constraint("DistanceX", 2, 1, 2, 2, 13.4))
sketch11.addConstraint(Sketcher.Constraint("DistanceY", 3, 2, 3, 1, 11.7))
sketch11.addConstraint(Sketcher.Constraint("DistanceX", 0, 2, -1, 1, 50.0))
sketch11.addConstraint(Sketcher.Constraint("DistanceY", -1, 1, 0, 2, 63.89))
pad5 = doc.addObject("PartDesign::Pad", "Pad004")
body.addObject(pad5)
pad5.Profile = sketch11
pad5.Length = 4
pad5.Reversed = True
doc.recompute()

fillet2 = doc.addObject("PartDesign::Fillet", "Fillet001")
body.addObject(fillet2)
fillet2.Base = (pad5, edges_at(pad5, [(-36.6, 64.89, -11.1), (-36.6, 53.19, -11.1)]))
fillet2.Radius = 0.5

# Sketch on YZ plane
sketch12 = doc.addObject("Sketcher::SketchObject", "Sketch011")
body.addObject(sketch12)
sketch12.AttachmentSupport = (doc.YZ_Plane, [""])
sketch12.MapMode = "FlatFace"
sketch12.AttachmentOffset = App.Placement(V(0, 0, -36.6), App.Rotation())
add_polygon(sketch12, [(62, -11.1), (56, -11.1), (56, -13.1), (62, -13.1)])  # lines 0-3
sketch12.addConstraint(Sketcher.Constraint("Horizontal", 0))
sketch12.addConstraint(Sketcher.Constraint("Vertical", 1))
sketch12.addConstraint(Sketcher.Constraint("Horizontal", 2))
sketch12.addConstraint(Sketcher.Constraint("Vertical", 3))
sketch12.addConstraint(Sketcher.Constraint("DistanceX", 0, 2, 0, 1, 6.0))
sketch12.addConstraint(Sketcher.Constraint("DistanceY", 1, 2, 1, 1, 2.0))
sketch12.addConstraint(Sketcher.Constraint("DistanceY", 0, 2, -1, 1, 11.1))
sketch12.addConstraint(Sketcher.Constraint("DistanceX", -1, 1, 0, 2, 56.04))
pocket7 = doc.addObject("PartDesign::Pocket", "Pocket006")
body.addObject(pocket7)
pocket7.Profile = sketch12
pocket7.Length = 1

# Sketch on XZ plane
sketch13 = doc.addObject("Sketcher::SketchObject", "Sketch012")
body.addObject(sketch13)
sketch13.AttachmentSupport = (doc.XZ_Plane, [""])
sketch13.MapMode = "FlatFace"
sketch13.AttachmentOffset = App.Placement(V(0, 0, -63.89), App.Rotation())
add_polygon(sketch13, [(-37.6, -10.1), (-37.6, -9.1), (-41, -9.1)])  # lines 0-2
sketch13.addConstraint(Sketcher.Constraint("Vertical", 0))
sketch13.addConstraint(Sketcher.Constraint("Horizontal", 1))
sketch13.addConstraint(Sketcher.Constraint("DistanceY", 0, 1, 0, 2, 1.0))
sketch13.addConstraint(Sketcher.Constraint("DistanceX", 1, 2, 1, 1, 3.4))
sketch13.addConstraint(Sketcher.Constraint("DistanceX", 1, 2, -1, 1, 41.0))
sketch13.addConstraint(Sketcher.Constraint("DistanceY", 0, 2, -1, 1, 9.1))
pad6 = doc.addObject("PartDesign::Pad", "Pad005")
body.addObject(pad6)
pad6.Profile = sketch13
pad6.Length = 9.7

# Sketch on XZ plane
sketch14 = doc.addObject("Sketcher::SketchObject", "Sketch013")
body.addObject(sketch14)
sketch14.AttachmentSupport = (doc.XZ_Plane, [""])
sketch14.MapMode = "FlatFace"
sketch14.AttachmentOffset = App.Placement(V(0, 0, -71), App.Rotation())
add_polygon(sketch14, [(-14, -45), (-23, -51), (-26, -47), (-17, -41)])  # lines 0-3
sketch14.addConstraint(Sketcher.Constraint("Perpendicular", 0, 1))
sketch14.addConstraint(Sketcher.Constraint("Perpendicular", 1, 2))
sketch14.addConstraint(Sketcher.Constraint("Perpendicular", 2, 3))
sketch14.addConstraint(Sketcher.Constraint("DistanceY", 3, 2, -1, 1, 45.0))
sketch14.addConstraint(Sketcher.Constraint("Distance", 0, 10.4))
sketch14.addConstraint(Sketcher.Constraint("Distance", 1, 5.4))
sketch14.addConstraint(Sketcher.Constraint("DistanceX", 0, 2, -1, 1, 22.581139))
sketch14.addConstraint(Sketcher.Constraint("DistanceY", 0, 2, -1, 1, 51.038579))
pocket8 = doc.addObject("PartDesign::Pocket", "Pocket007")
body.addObject(pocket8)
pocket8.Profile = sketch14
pocket8.Length = 2.5
pocket8.Reversed = True

# Sketch on XZ plane
sketch15 = doc.addObject("Sketcher::SketchObject", "Sketch014")
body.addObject(sketch15)
sketch15.AttachmentSupport = (doc.XZ_Plane, [""])
sketch15.MapMode = "FlatFace"
sketch15.AttachmentOffset = App.Placement(V(0, 0, -71), App.Rotation())
add_polygon(sketch15, [(-29, -49), (-14, -38), (-11, -43), (-26, -53)])  # lines 0-3
sketch15.addConstraint(Sketcher.Constraint("Perpendicular", 0, 1))
sketch15.addConstraint(Sketcher.Constraint("Perpendicular", 1, 2))
sketch15.addConstraint(Sketcher.Constraint("Perpendicular", 2, 3))
sketch15.addConstraint(Sketcher.Constraint("Distance", 0, 18.4))
sketch15.addConstraint(Sketcher.Constraint("Distance", 1, 5.4))
sketch15.addConstraint(Sketcher.Constraint("DistanceX", 2, 2, -1, 1, 25.837802))
sketch15.addConstraint(Sketcher.Constraint("DistanceX", 0, 2, -1, 1, 13.992569))
sketch15.addConstraint(Sketcher.Constraint("DistanceY", 1, 2, -1, 1, 42.677469))
pocket9 = doc.addObject("PartDesign::Pocket", "Pocket008")
body.addObject(pocket9)
pocket9.Profile = sketch15
pocket9.Length = 0.7
pocket9.Reversed = True

# Sketch on XZ plane
sketch16 = doc.addObject("Sketcher::SketchObject", "Sketch015")
body.addObject(sketch16)
sketch16.AttachmentSupport = (doc.XZ_Plane, [""])
sketch16.MapMode = "FlatFace"
sketch16.AttachmentOffset = App.Placement(V(0, 0, -70.3), App.Rotation())
sketch16.addGeometry(Part.Circle(V(-13.7, -41.4, 0), V(0, 0, 1), 1), False)
sketch16.addGeometry(Part.Circle(V(-26.1, -50.2, 0), V(0, 0, 1), 1), False)
sketch16.addConstraint(Sketcher.Constraint("Equal", 0, 1))
sketch16.addConstraint(Sketcher.Constraint("Diameter", 0, 2.0))
sketch16.addConstraint(Sketcher.Constraint("DistanceY", 1, 3, -1, 1, 50.23385))
sketch16.addConstraint(Sketcher.Constraint("DistanceX", 1, 3, 0, 3, 12.375318))
sketch16.addConstraint(Sketcher.Constraint("DistanceX", 0, 3, -1, 1, 13.727526))
sketch16.addConstraint(Sketcher.Constraint("DistanceY", 0, 3, -1, 1, 41.408234))
pocket10 = doc.addObject("PartDesign::Pocket", "Pocket009")
body.addObject(pocket10)
pocket10.Profile = sketch16
pocket10.Length = 1.8
pocket10.Reversed = True

doc.recompute()
